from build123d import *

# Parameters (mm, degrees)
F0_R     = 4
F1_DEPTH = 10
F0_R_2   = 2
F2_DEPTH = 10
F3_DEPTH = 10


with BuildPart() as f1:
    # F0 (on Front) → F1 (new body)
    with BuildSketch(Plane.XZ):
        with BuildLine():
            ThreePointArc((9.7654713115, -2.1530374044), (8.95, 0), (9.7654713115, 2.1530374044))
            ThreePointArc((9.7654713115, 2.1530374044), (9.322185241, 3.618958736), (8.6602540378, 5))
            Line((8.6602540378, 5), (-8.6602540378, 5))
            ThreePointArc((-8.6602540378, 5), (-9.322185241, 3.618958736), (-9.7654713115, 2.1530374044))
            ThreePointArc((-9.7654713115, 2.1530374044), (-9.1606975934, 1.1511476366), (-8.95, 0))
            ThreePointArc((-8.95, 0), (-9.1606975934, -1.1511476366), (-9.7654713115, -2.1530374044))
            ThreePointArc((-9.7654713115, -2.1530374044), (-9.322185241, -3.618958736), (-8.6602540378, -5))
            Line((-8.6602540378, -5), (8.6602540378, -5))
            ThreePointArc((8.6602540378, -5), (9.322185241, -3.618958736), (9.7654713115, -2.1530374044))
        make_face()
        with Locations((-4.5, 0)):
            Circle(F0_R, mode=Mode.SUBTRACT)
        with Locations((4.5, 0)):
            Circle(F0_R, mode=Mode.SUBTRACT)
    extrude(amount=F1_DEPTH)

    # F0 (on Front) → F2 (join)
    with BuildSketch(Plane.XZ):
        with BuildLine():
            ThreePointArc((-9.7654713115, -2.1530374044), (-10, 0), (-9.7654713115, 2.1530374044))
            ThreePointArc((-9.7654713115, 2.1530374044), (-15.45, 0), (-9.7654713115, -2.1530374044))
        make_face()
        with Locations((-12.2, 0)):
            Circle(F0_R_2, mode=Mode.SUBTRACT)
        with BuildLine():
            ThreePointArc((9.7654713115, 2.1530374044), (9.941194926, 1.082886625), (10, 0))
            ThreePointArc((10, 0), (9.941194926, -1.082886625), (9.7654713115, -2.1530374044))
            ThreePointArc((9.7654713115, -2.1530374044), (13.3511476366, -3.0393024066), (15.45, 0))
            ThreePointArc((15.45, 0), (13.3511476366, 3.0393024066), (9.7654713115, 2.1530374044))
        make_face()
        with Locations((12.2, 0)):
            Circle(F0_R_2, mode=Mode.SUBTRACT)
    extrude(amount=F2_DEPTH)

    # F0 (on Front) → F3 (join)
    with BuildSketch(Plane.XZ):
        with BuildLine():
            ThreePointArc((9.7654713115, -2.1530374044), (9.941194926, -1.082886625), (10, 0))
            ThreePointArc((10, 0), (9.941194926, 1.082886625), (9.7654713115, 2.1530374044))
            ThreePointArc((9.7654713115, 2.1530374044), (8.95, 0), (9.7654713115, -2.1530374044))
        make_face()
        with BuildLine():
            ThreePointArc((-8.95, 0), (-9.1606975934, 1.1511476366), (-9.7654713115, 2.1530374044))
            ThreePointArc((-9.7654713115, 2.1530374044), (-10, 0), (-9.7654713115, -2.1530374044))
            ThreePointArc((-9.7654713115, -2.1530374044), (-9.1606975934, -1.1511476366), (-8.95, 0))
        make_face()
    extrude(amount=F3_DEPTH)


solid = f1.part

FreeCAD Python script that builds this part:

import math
import FreeCAD as App
import Part
import Sketcher

doc = App.newDocument("Part")
body = doc.addObject("PartDesign::Body", "Body")
body.AllowCompound = True

sketch1 = body.newObject("Sketcher::SketchObject", "Sketch")
sketch1.AttachmentSupport = (doc.getObject("XZ_Plane"), [""])
sketch1.MapMode = "FlatFace"
sketch1.addGeometry([
    Part.ArcOfCircle(Part.Circle(App.Vector(12.2, 0, 0), App.Vector(0, 0, 1), 3.2), math.radians(139), math.radians(221)),
    Part.ArcOfCircle(Part.Circle(App.Vector(0, 0, 0), App.Vector(0, 0, 1), 10), math.radians(12.43), math.radians(30)),
    Part.LineSegment(App.Vector(8.7, 5, 0), App.Vector(-8.7, 5, 0)),
    Part.ArcOfCircle(Part.Circle(App.Vector(0, 0, 0), App.Vector(0, 0, 1), 10), math.radians(150), math.radians(167.57)),
    Part.ArcOfCircle(Part.Circle(App.Vector(-12.2, 0, 0), App.Vector(0, 0, 1), 3.2), math.radians(0), math.radians(41)),
    Part.ArcOfCircle(Part.Circle(App.Vector(-12.2, 0, 0), App.Vector(0, 0, 1), 3.2), math.radians(-41), math.radians(0)),
    Part.ArcOfCircle(Part.Circle(App.Vector(0, 0, 0), App.Vector(0, 0, 1), 10), math.radians(-167.57), math.radians(-150)),
    Part.LineSegment(App.Vector(-8.7, -5, 0), App.Vector(8.7, -5, 0)),
    Part.ArcOfCircle(Part.Circle(App.Vector(0, 0, 0), App.Vector(0, 0, 1), 10), math.radians(-30), math.radians(-12.43)),
    Part.Circle(App.Vector(-4.5, 0, 0), App.Vector(0, 0, 1), 4),
    Part.Circle(App.Vector(4.5, 0, 0), App.Vector(0, 0, 1), 4),
], False)
sketch1.addConstraint([
    Sketcher.Constraint("Coincident", 0, 1, 1, 1),
    Sketcher.Constraint("Coincident", 1, 2, 2, 1),
    Sketcher.Constraint("Coincident", 2, 2, 3, 1),
    Sketcher.Constraint("Coincident", 3, 2, 4, 2),
    Sketcher.Constraint("Tangent", 4, 1, 5, 2),
    Sketcher.Constraint("Coincident", 5, 1, 6, 1),
    Sketcher.Constraint("Coincident", 6, 2, 7, 1),
    Sketcher.Constraint("Coincident", 7, 2, 8, 1),
    Sketcher.Constraint("Coincident", 8, 2, 0, 2),
    Sketcher.Constraint("Horizontal", 2),
    Sketcher.Constraint("Horizontal", 7),
    Sketcher.Constraint("Coincident", 1, 3, -1, 1),
    Sketcher.Constraint("Coincident", 3, 3, -1, 1),
    Sketcher.Constraint("Coincident", 6, 3, -1, 1),
    Sketcher.Constraint("Coincident", 8, 3, -1, 1),
    Sketcher.Constraint("Equal", 1, 3),
    Sketcher.Constraint("Equal", 0, 4),
    Sketcher.Constraint("Equal", 4, 5),
    Sketcher.Constraint("Equal", 3, 6),
    Sketcher.Constraint("Equal", 6, 8),
    Sketcher.Constraint("Equal", 9, 10),
    Sketcher.Constraint("Symmetric", 0, 3, 4, 3, -1, 1),
    Sketcher.Constraint("Symmetric", 9, 3, 10, 3, -1, 1),
    Sketcher.Constraint("PointOnObject", 0, 3, -1),
    Sketcher.Constraint("PointOnObject", 9, 3, -1),
    Sketcher.Constraint("PointOnObject", 4, 1, -1),
    Sketcher.Constraint("Vertical", 2, 2, 6, 2),
    Sketcher.Constraint("Diameter", 9, 8.0),
    Sketcher.Constraint("Radius", 1, 10.0),
    Sketcher.Constraint("Radius", 0, 3.25),
    Sketcher.Constraint("DistanceY", -1, 1, 1, 2, 5.0),
    Sketcher.Constraint("DistanceX", -1, 1, 0, 3, 12.2),
    Sketcher.Constraint("DistanceX", 9, 3, -1, 1, 4.5),
])
pad1 = body.newObject("PartDesign::Pad", "Pad")
pad1.Profile = sketch1
pad1.Length = 10

sketch2 = body.newObject("Sketcher::SketchObject", "Sketch001")
sketch2.AttachmentSupport = (doc.getObject("XZ_Plane"), [""])
sketch2.MapMode = "FlatFace"
sketch2.addGeometry([
    Part.ArcOfCircle(Part.Circle(App.Vector(0, 0, 0), App.Vector(0, 0, 1), 10), math.radians(168), math.radians(192)),
    Part.ArcOfCircle(Part.Circle(App.Vector(-12.2, 0, 0), App.Vector(0, 0, 1), 3.2), math.radians(41), math.radians(319)),
    Part.Circle(App.Vector(-12.2, 0, 0), App.Vector(0, 0, 1), 2),
    Part.ArcOfCircle(Part.Circle(App.Vector(0, 0, 0), App.Vector(0, 0, 1), 10), math.radians(0), math.radians(12.43)),
    Part.ArcOfCircle(Part.Circle(App.Vector(0, 0, 0), App.Vector(0, 0, 1), 10), math.radians(-12.43), math.radians(0)),
    Part.ArcOfCircle(Part.Circle(App.Vector(12.2, 0, 0), App.Vector(0, 0, 1), 3.2), math.radians(-139), math.radians(0)),
    Part.ArcOfCircle(Part.Circle(App.Vector(12.2, 0, 0), App.Vector(0, 0, 1), 3.2), math.radians(0), math.radians(139)),
    Part.Circle(App.Vector(12.2, 0, 0), App.Vector(0, 0, 1), 2),
], False)
sketch2.addConstraint([
    Sketcher.Constraint("Coincident", 0, 1, 1, 1),
    Sketcher.Constraint("Coincident", 1, 2, 0, 2),
    Sketcher.Constraint("Tangent", 3, 1, 4, 2),
    Sketcher.Constraint("Coincident", 4, 1, 5, 1),
    Sketcher.Constraint("Tangent", 5, 2, 6, 1),
    Sketcher.Constraint("Coincident", 6, 2, 3, 2),
    Sketcher.Constraint("Coincident", 0, 3, -1, 1),
    Sketcher.Constraint("Coincident", 3, 3, -1, 1),
    Sketcher.Constraint("Coincident", 2, 3, 1, 3),
    Sketcher.Constraint("Coincident", 7, 3, 5, 3),
    Sketcher.Constraint("Equal", 0, 3),
    Sketcher.Constraint("Equal", 3, 4),
    Sketcher.Constraint("Equal", 1, 5),
    Sketcher.Constraint("Equal", 5, 6),
    Sketcher.Constraint("Equal", 2, 7),
    Sketcher.Constraint("Symmetric", 1, 3, 5, 3, -1, 1),
    Sketcher.Constraint("PointOnObject", 1, 3, -1),
    Sketcher.Constraint("PointOnObject", 3, 1, -1),
    Sketcher.Constraint("PointOnObject", 5, 2, -1),
    Sketcher.Constraint("Diameter", 2, 4.0),
    Sketcher.Constraint("Radius", 0, 10.0),
    Sketcher.Constraint("Radius", 1, 3.25),
    Sketcher.Constraint("DistanceX", 1, 3, -1, 1, 12.2),
])
pad2 = body.newObject("PartDesign::Pad", "Pad001")
pad2.Profile = sketch2
pad2.Length = 10

sketch3 = body.newObject("Sketcher::SketchObject", "Sketch002")
sketch3.AttachmentSupport = (doc.getObject("XZ_Plane"), [""])
sketch3.MapMode = "FlatFace"
sketch3.addGeometry([
    Part.ArcOfCircle(Part.Circle(App.Vector(0, 0, 0), App.Vector(0, 0, 1), 10), math.radians(-12.43), math.radians(0)),
    Part.ArcOfCircle(Part.Circle(App.Vector(0, 0, 0), App.Vector(0, 0, 1), 10), math.radians(0), math.radians(12.43)),
    Part.ArcOfCircle(Part.Circle(App.Vector(12.2, 0, 0), App.Vector(0, 0, 1), 3.2), math.radians(139), math.radians(221)),
    Part.ArcOfCircle(Part.Circle(App.Vector(-12.2, 0, 0), App.Vector(0, 0, 1), 3.2), math.radians(0), math.radians(41)),
    Part.ArcOfCircle(Part.Circle(App.Vector(0, 0, 0), App.Vector(0, 0, 1), 10), math.radians(168), math.radians(192)),
    Part.ArcOfCircle(Part.Circle(App.Vector(-12.2, 0, 0), App.Vector(0, 0, 1), 3.2), math.radians(-41), math.radians(0)),
], False)
sketch3.addConstraint([
    Sketcher.Constraint("Tangent", 0, 2, 1, 1),
    Sketcher.Constraint("Coincident", 1, 2, 2, 1),
    Sketcher.Constraint("Coincident", 2, 2, 0, 1),
    Sketcher.Constraint("Coincident", 3, 2, 4, 1),
    Sketcher.Constraint("Coincident", 4, 2, 5, 1),
    Sketcher.Constraint("Tangent", 5, 2, 3, 1),
    Sketcher.Constraint("Coincident", 0, 3, -1, 1),
    Sketcher.Constraint("Coincident", 4, 3, -1, 1),
    Sketcher.Constraint("Equal", 0, 1),
    Sketcher.Constraint("Equal", 2, 3),
    Sketcher.Constraint("Equal", 1, 4),
    Sketcher.Constraint("Equal", 3, 5),
    Sketcher.Constraint("Symmetric", 2, 3, 3, 3, -1, 1),
    Sketcher.Constraint("PointOnObject", 2, 3, -1),
    Sketcher.Constraint("PointOnObject", 0, 2, -1),
    Sketcher.Constraint("PointOnObject", 5, 2, -1),
    Sketcher.Constraint("Radius", 0, 10.0),
    Sketcher.Constraint("Radius", 2, 3.25),
    Sketcher.Constraint("DistanceX", -1, 1, 2, 3, 12.2),
])
pad3 = body.newObject("PartDesign::Pad", "Pad002")
pad3.Profile = sketch3
pad3.Length = 10

doc.recompute()
